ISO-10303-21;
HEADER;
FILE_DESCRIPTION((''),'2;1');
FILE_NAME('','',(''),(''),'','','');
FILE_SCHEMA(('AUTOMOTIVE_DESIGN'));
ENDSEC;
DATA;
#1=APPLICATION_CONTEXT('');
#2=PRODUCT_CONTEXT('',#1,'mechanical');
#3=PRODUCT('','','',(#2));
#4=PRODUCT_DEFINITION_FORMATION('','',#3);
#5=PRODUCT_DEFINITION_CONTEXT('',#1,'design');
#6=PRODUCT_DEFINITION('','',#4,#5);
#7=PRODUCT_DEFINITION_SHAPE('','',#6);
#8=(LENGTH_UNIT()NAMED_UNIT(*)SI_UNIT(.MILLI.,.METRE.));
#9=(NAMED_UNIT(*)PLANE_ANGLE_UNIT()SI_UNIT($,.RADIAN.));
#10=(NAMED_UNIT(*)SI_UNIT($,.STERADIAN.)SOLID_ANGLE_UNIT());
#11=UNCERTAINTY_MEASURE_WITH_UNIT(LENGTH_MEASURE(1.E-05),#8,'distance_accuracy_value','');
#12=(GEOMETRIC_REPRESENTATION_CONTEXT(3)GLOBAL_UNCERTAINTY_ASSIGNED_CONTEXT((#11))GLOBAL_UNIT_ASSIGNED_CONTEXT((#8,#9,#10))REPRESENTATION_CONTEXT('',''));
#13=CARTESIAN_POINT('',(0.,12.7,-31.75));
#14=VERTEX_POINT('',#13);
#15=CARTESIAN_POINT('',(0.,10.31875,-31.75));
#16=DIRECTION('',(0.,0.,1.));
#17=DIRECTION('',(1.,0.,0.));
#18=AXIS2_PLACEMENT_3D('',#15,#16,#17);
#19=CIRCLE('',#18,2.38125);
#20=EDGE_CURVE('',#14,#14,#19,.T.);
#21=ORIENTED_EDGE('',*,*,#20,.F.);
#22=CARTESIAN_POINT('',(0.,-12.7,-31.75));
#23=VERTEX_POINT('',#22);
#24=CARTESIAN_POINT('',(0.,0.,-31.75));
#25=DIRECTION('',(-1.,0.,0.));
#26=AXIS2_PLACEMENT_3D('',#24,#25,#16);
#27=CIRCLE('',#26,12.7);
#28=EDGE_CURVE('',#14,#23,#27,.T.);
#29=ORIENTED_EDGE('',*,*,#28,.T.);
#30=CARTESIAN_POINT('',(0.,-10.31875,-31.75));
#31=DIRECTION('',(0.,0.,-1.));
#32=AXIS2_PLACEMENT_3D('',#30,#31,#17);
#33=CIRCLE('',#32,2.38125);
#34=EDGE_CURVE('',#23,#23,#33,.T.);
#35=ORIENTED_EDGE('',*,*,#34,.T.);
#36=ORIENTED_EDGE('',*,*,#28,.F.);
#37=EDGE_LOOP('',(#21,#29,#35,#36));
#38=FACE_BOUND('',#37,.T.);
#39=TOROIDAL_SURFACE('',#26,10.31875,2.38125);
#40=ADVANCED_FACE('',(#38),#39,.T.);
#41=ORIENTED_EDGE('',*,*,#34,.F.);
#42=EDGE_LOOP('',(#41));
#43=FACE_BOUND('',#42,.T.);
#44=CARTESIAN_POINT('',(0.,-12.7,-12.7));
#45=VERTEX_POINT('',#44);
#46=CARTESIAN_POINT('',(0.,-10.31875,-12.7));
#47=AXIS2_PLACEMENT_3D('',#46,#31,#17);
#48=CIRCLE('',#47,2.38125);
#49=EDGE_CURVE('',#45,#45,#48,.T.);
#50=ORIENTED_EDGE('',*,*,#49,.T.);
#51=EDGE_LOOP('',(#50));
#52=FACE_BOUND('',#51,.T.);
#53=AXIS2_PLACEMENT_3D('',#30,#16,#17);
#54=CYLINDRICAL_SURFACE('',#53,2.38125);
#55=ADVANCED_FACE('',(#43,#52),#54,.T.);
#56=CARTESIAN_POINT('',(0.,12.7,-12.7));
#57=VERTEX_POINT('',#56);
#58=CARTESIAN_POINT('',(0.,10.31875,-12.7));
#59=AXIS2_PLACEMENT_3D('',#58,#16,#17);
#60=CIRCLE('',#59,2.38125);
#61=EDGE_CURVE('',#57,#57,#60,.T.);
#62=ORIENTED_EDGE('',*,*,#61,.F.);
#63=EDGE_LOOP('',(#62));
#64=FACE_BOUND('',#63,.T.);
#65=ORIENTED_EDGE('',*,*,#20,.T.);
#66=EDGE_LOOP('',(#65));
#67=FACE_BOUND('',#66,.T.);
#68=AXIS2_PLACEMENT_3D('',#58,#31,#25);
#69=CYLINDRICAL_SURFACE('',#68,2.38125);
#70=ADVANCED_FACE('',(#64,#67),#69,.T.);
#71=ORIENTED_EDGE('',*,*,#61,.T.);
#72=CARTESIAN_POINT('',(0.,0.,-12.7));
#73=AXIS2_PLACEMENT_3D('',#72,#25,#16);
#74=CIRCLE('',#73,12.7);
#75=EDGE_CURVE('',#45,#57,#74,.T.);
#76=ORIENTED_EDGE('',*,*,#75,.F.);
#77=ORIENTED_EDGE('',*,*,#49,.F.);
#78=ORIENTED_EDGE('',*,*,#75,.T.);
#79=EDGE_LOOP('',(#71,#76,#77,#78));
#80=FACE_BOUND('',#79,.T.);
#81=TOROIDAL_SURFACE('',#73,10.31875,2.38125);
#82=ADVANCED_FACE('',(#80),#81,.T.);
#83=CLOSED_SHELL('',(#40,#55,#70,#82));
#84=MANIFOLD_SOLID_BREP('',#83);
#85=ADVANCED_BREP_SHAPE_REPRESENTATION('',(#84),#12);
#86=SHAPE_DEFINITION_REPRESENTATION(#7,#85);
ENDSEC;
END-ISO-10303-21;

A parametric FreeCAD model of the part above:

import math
import FreeCAD as App
import Part
import Sketcher

V = App.Vector
Q = App.Units.Quantity

doc = App.newDocument("Part")
body = doc.addObject("PartDesign::Body", "Body")

# Sketch on XY plane
sketch1 = doc.addObject("Sketcher::SketchObject", "Sketch")
body.addObject(sketch1)
sketch1.AttachmentSupport = (doc.XY_Plane, [""])
sketch1.MapMode = "FlatFace"
sketch1.AttachmentOffset = App.Placement(V(0, 0, -1.25 * 25.4), App.Rotation())
sketch1.addGeometry(Part.Circle(V(0, -10.3, 0), V(0, 0, 1), 2.4), False)
sketch1.addConstraint([
    Sketcher.Constraint("PointOnObject", 0, 3, -2),
    Sketcher.Constraint("Diameter", 0, Q("0.1875 in")),
    Sketcher.Constraint("DistanceY", 0, 3, -1, 1, Q("0.40625 in")),
])

# Sketch on YZ plane
sketch2 = doc.addObject("Sketcher::SketchObject", "Sketch001")
body.addObject(sketch2)
sketch2.AttachmentSupport = (doc.YZ_Plane, [""])
sketch2.MapMode = "FlatFace"
sketch2.addGeometry([
    Part.LineSegment(V(-10, -32, 0), V(-10, -13, 0)),
    Part.ArcOfCircle(Part.Circle(V(0, -13, 0), V(0, 0, 1), 10), math.radians(0), math.radians(180)),
    Part.LineSegment(V(10, -13, 0), V(10, -32, 0)),
    Part.ArcOfCircle(Part.Circle(V(0, -32, 0), V(0, 0, 1), 10), math.radians(180), math.radians(360)),
], False)
sketch2.addConstraint([
    Sketcher.Constraint("Tangent", 0, 2, 1, 2),
    Sketcher.Constraint("Tangent", 1, 1, 2, 1),
    Sketcher.Constraint("Tangent", 2, 2, 3, 2),
    Sketcher.Constraint("Tangent", 3, 1, 0, 1),
    Sketcher.Constraint("Vertical", 0),
    Sketcher.Constraint("Vertical", 2),
    Sketcher.Constraint("PointOnObject", 1, 3, -2),
    Sketcher.Constraint("Radius", 1, Q("0.40625 in")),
    Sketcher.Constraint("DistanceY", 0, 1, 0, 2, Q("0.75 in")),
    Sketcher.Constraint("DistanceY", 1, 3, -1, 1, Q("0.5 in")),
])
doc.recompute()

additivepipe = doc.addObject("PartDesign::AdditivePipe", "AdditivePipe")
body.addObject(additivepipe)
additivepipe.Profile = sketch1
additivepipe.Spine = (sketch2, ["Edge1", "Edge2", "Edge3", "Edge4"])

doc.recompute()
